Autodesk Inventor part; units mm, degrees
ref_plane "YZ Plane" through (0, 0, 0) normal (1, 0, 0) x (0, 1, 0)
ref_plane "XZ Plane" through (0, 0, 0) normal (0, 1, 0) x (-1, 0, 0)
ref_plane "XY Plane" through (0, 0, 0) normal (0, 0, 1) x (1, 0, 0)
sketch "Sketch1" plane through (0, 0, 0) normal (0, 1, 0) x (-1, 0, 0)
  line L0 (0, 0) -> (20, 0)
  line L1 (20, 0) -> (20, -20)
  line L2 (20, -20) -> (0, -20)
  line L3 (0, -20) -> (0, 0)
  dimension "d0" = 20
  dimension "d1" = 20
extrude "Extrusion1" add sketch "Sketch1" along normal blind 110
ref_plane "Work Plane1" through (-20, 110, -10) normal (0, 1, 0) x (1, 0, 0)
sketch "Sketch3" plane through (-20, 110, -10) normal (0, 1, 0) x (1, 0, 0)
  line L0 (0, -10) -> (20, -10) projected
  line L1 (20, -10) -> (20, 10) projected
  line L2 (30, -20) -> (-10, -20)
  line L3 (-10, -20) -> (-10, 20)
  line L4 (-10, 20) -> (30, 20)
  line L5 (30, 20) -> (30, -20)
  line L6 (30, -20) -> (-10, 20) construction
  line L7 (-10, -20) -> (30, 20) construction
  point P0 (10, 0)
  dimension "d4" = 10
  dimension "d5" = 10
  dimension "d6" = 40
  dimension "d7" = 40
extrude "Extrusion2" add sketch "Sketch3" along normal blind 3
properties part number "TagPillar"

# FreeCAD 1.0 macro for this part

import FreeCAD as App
import Part
import Sketcher
from FreeCAD import Vector

doc = App.newDocument("Part")
params = doc.addObject("Spreadsheet::Sheet", "Params")
for row, (alias, value) in enumerate([
    ("sketch1_width", "20 mm"),
    ("pad1_length", "110 mm"),
    ("sketch2_width", "40 mm"),
    ("pad2_length", "3 mm"),
], start=1):
    params.set(f"A{row}", alias)
    params.set(f"B{row}", "=" + value)
    params.setAlias(f"B{row}", alias)

body = doc.addObject("PartDesign::Body", "Body")

sketch1 = body.newObject("Sketcher::SketchObject", "Sketch")
sketch1.AttachmentSupport = (doc.getObject("XZ_Plane"), [""])
sketch1.MapMode = "FlatFace"
sketch1.addGeometry(Part.LineSegment(Vector(-20, 0, 0), Vector(0, 0, 0)), False)
sketch1.addGeometry(Part.LineSegment(Vector(0, 0, 0), Vector(0, -20, 0)), False)
sketch1.addGeometry(Part.LineSegment(Vector(0, -20, 0), Vector(-20, -20, 0)), False)
sketch1.addGeometry(Part.LineSegment(Vector(-20, -20, 0), Vector(-20, 0, 0)), False)
sketch1.addConstraint(Sketcher.Constraint("Coincident", 0, 2, 1, 1))
sketch1.addConstraint(Sketcher.Constraint("Coincident", 1, 2, 2, 1))
sketch1.addConstraint(Sketcher.Constraint("Coincident", 2, 2, 3, 1))
sketch1.addConstraint(Sketcher.Constraint("Coincident", 3, 2, 0, 1))
sketch1.addConstraint(Sketcher.Constraint("Horizontal", 0))
sketch1.addConstraint(Sketcher.Constraint("Vertical", 1))
sketch1.addConstraint(Sketcher.Constraint("Horizontal", 2))
sketch1.addConstraint(Sketcher.Constraint("Vertical", 3))
sketch1.addConstraint(Sketcher.Constraint("Coincident", 0, 2, -1, 1))
sketch1.addConstraint(Sketcher.Constraint("Equal", 2, 1))
sketch1.addConstraint(Sketcher.Constraint("DistanceX", 0, 1, 0, 2, 20.0))
sketch1.setExpression("Constraints[10]", "Params.sketch1_width")
pad1 = body.newObject("PartDesign::Pad", "Pad")
pad1.Profile = sketch1
pad1.setExpression("Length", "Params.pad1_length")
pad1.Reversed = True

sketch2 = body.newObject("Sketcher::SketchObject", "Sketch001")
sketch2.AttachmentSupport = (doc.getObject("XZ_Plane"), [""])
sketch2.MapMode = "FlatFace"
sketch2.AttachmentOffset = App.Placement(Vector(0, 0, -110), App.Rotation())
sketch2.addGeometry(Part.LineSegment(Vector(-30, 10, 0), Vector(10, 10, 0)), False)
sketch2.addGeometry(Part.LineSegment(Vector(10, 10, 0), Vector(10, -30, 0)), False)
sketch2.addGeometry(Part.LineSegment(Vector(10, -30, 0), Vector(-30, -30, 0)), False)
sketch2.addGeometry(Part.LineSegment(Vector(-30, -30, 0), Vector(-30, 10, 0)), False)
sketch2.addConstraint(Sketcher.Constraint("Coincident", 0, 2, 1, 1))
sketch2.addConstraint(Sketcher.Constraint("Coincident", 1, 2, 2, 1))
sketch2.addConstraint(Sketcher.Constraint("Coincident", 2, 2, 3, 1))
sketch2.addConstraint(Sketcher.Constraint("Coincident", 3, 2, 0, 1))
sketch2.addConstraint(Sketcher.Constraint("Horizontal", 0))
sketch2.addConstraint(Sketcher.Constraint("Vertical", 1))
sketch2.addConstraint(Sketcher.Constraint("Horizontal", 2))
sketch2.addConstraint(Sketcher.Constraint("Vertical", 3))
sketch2.addConstraint(Sketcher.Constraint("Equal", 2, 1))
sketch2.addConstraint(Sketcher.Constraint("DistanceX", 0, 1, 0, 2, 40.0))
sketch2.addConstraint(Sketcher.Constraint("DistanceX", -1, 1, 0, 2, 10.0))
sketch2.addConstraint(Sketcher.Constraint("DistanceY", -1, 1, 0, 2, 10.0))
sketch2.setExpression("Constraints[9]", "Params.sketch2_width")
pad2 = body.newObject("PartDesign::Pad", "Pad001")
pad2.Profile = sketch2
pad2.setExpression("Length", "Params.pad2_length")
pad2.Reversed = True

doc.recompute()
